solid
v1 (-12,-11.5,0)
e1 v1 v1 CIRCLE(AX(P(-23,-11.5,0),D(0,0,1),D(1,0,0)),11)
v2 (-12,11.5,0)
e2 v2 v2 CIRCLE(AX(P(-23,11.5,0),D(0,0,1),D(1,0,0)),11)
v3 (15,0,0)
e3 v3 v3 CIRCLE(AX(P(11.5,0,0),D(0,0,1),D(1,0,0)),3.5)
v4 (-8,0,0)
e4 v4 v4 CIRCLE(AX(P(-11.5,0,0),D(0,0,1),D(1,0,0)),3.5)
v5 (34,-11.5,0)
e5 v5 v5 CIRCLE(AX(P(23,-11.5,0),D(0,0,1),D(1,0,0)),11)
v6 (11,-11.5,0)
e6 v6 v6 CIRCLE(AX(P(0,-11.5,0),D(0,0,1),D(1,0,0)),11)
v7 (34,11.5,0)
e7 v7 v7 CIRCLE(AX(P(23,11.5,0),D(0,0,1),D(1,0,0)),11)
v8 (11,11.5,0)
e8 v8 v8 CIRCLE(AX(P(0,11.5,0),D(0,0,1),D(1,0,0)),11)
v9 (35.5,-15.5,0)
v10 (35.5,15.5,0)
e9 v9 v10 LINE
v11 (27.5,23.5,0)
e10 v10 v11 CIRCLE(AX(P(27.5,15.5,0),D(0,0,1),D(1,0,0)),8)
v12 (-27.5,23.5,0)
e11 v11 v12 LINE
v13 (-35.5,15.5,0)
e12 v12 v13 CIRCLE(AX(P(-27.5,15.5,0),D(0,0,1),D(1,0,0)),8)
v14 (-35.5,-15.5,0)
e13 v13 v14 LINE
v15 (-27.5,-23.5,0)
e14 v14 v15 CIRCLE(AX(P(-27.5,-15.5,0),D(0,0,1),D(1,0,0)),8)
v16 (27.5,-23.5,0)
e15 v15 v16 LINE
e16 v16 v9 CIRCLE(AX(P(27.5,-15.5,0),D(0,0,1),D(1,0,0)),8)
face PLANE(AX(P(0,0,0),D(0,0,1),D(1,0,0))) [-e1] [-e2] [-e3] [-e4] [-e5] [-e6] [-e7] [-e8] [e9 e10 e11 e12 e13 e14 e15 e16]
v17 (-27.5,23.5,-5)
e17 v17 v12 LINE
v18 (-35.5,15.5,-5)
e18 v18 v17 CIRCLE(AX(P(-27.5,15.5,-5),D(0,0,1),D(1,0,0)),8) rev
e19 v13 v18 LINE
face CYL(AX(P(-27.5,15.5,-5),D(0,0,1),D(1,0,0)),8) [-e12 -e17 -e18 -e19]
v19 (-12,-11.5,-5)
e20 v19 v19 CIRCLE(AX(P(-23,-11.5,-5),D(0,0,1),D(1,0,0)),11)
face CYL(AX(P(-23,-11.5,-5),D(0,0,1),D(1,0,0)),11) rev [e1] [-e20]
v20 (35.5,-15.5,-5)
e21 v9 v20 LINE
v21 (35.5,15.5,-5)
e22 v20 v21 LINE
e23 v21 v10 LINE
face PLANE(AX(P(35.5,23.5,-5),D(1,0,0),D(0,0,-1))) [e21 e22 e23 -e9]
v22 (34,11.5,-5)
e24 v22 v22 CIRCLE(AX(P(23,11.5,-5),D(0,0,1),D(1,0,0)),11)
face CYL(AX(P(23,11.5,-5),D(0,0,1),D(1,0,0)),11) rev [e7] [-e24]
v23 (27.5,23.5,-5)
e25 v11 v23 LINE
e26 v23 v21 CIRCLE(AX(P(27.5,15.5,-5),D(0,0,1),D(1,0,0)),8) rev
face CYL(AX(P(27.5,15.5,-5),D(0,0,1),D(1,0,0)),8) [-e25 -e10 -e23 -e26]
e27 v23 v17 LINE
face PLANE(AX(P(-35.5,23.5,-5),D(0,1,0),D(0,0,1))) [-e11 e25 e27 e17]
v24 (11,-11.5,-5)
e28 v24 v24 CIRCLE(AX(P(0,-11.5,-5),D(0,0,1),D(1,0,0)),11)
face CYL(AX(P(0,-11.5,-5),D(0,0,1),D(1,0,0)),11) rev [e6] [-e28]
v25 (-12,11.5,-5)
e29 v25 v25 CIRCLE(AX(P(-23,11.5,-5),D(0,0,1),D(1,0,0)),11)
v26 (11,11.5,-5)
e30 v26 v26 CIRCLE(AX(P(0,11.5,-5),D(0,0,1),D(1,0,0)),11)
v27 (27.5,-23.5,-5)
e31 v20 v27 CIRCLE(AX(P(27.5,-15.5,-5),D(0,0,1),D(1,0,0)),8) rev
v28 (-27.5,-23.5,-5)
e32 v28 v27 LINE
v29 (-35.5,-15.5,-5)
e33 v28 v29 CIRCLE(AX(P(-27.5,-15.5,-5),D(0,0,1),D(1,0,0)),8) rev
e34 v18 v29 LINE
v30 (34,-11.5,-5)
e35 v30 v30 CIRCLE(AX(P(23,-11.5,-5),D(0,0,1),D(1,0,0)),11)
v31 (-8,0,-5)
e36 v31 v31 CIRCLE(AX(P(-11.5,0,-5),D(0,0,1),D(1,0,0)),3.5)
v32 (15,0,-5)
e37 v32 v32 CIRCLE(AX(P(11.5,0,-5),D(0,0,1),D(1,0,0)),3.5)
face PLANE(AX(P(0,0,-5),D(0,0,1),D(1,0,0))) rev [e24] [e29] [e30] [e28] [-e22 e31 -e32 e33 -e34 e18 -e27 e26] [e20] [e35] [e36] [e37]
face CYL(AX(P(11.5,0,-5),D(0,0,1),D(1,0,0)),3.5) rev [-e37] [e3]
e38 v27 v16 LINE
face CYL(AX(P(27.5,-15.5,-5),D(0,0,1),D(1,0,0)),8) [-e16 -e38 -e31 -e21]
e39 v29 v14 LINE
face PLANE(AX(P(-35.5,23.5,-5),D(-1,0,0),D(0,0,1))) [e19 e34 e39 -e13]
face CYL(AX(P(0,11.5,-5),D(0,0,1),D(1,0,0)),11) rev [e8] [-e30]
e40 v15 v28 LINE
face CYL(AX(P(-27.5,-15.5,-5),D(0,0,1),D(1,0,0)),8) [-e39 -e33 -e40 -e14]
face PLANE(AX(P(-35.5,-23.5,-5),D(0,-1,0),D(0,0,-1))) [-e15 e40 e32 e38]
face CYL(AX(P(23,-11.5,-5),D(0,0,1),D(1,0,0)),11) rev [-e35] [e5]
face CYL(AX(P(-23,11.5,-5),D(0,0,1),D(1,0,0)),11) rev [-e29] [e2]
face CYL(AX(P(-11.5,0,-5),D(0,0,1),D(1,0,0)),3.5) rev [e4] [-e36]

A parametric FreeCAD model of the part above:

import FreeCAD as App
import Part
import Sketcher
from FreeCAD import Vector


def edges_at(feature, points):
    """Names of the edges that pass closest to the given points."""
    edges = feature.Shape.Edges
    near = lambda p: min(range(len(edges)), key=lambda i: edges[i].distToShape(Part.Vertex(*p))[0])
    return sorted({f"Edge{near(p) + 1}" for p in points})


def add_polygon(sketch, points):
    """Adds a closed chain of lines whose ends are joined by coincident constraints."""
    first, n = sketch.GeometryCount, len(points)
    for a, b in zip(points, points[1:] + points[:1]):
        sketch.addGeometry(Part.LineSegment(App.Vector(*a, 0), App.Vector(*b, 0)), False)
    for i in range(n):
        sketch.addConstraint(Sketcher.Constraint("Coincident", first + i, 2, first + (i + 1) % n, 1))

doc = App.newDocument("Part")
body = doc.addObject("PartDesign::Body", "Body")

sketch1 = doc.addObject("Sketcher::SketchObject", "Sketch")
body.addObject(sketch1)
sketch1.AttachmentSupport = (doc.XY_Plane, [""])
sketch1.MapMode = "FlatFace"
add_polygon(sketch1, [(-35.5, 23.5), (-35.5, -23.5), (35.5, -23.5), (35.5, 23.5)])
sketch1.addGeometry(Part.Circle(Vector(-23, -11.5, 0), Vector(0, 0, 1), 11), False)
sketch1.addGeometry(Part.Circle(Vector(0, -11.5, 0), Vector(0, 0, 1), 11), False)
sketch1.addGeometry(Part.Circle(Vector(23, -11.5, 0), Vector(0, 0, 1), 11), False)
sketch1.addGeometry(Part.Circle(Vector(-11.5, 0, 0), Vector(0, 0, 1), 3.5), False)
sketch1.addGeometry(Part.Circle(Vector(-23, 11.5, 0), Vector(0, 0, 1), 11), False)
sketch1.addGeometry(Part.Circle(Vector(11.5, 0, 0), Vector(0, 0, 1), 3.5), False)
sketch1.addGeometry(Part.Circle(Vector(0, 11.5, 0), Vector(0, 0, 1), 11), False)
sketch1.addGeometry(Part.Circle(Vector(23, 11.5, 0), Vector(0, 0, 1), 11), False)
sketch1.addConstraint(Sketcher.Constraint("Vertical", 0))
sketch1.addConstraint(Sketcher.Constraint("Horizontal", 1))
sketch1.addConstraint(Sketcher.Constraint("Vertical", 2))
sketch1.addConstraint(Sketcher.Constraint("Horizontal", 3))
sketch1.addConstraint(Sketcher.Constraint("Equal", 4, 5))
sketch1.addConstraint(Sketcher.Constraint("Equal", 5, 6))
sketch1.addConstraint(Sketcher.Constraint("Equal", 6, 8))
sketch1.addConstraint(Sketcher.Constraint("Equal", 7, 9))
sketch1.addConstraint(Sketcher.Constraint("Equal", 8, 10))
sketch1.addConstraint(Sketcher.Constraint("Equal", 10, 11))
sketch1.addConstraint(Sketcher.Constraint("Symmetric", 6, 3, 8, 3, -1, 1))
sketch1.addConstraint(Sketcher.Constraint("Symmetric", 7, 3, 9, 3, -1, 1))
sketch1.addConstraint(Sketcher.Constraint("Symmetric", 5, 3, 10, 3, -1, 1))
sketch1.addConstraint(Sketcher.Constraint("Symmetric", 4, 3, 11, 3, -1, 1))
sketch1.addConstraint(Sketcher.Constraint("Symmetric", 0, 2, 2, 2, -1, 1))
sketch1.addConstraint(Sketcher.Constraint("Symmetric", 4, 3, 6, 3, -2))
sketch1.addConstraint(Sketcher.Constraint("PointOnObject", 5, 3, -2))
sketch1.addConstraint(Sketcher.Constraint("PointOnObject", 7, 3, -1))
sketch1.addConstraint(Sketcher.Constraint("Horizontal", 4, 3, 5, 3))
sketch1.addConstraint(Sketcher.Constraint("Diameter", 4, 22.0))
sketch1.addConstraint(Sketcher.Constraint("Diameter", 7, 7.0))
sketch1.addConstraint(Sketcher.Constraint("DistanceX", 1, 1, 1, 2, 71.0))
sketch1.addConstraint(Sketcher.Constraint("DistanceY", 0, 2, 0, 1, 47.0))
sketch1.addConstraint(Sketcher.Constraint("DistanceX", 4, 3, -1, 1, 23.0))
sketch1.addConstraint(Sketcher.Constraint("DistanceY", 4, 3, 8, 3, 23.0))
sketch1.addConstraint(Sketcher.Constraint("DistanceX", 7, 3, 9, 3, 23.0))
pad1 = doc.addObject("PartDesign::Pad", "Pad")
body.addObject(pad1)
pad1.Profile = sketch1
pad1.Length = 5
pad1.Reversed = True
doc.recompute()

fillet = doc.addObject("PartDesign::Fillet", "Fillet")
body.addObject(fillet)
fillet.Base = (pad1, edges_at(pad1, [
    (35.5, -23.5, -2.5),
    (-35.5, -23.5, -2.5),
    (-35.5, 23.5, -2.5),
    (35.5, 23.5, -2.5),
]))
fillet.Radius = 8

doc.recompute()
